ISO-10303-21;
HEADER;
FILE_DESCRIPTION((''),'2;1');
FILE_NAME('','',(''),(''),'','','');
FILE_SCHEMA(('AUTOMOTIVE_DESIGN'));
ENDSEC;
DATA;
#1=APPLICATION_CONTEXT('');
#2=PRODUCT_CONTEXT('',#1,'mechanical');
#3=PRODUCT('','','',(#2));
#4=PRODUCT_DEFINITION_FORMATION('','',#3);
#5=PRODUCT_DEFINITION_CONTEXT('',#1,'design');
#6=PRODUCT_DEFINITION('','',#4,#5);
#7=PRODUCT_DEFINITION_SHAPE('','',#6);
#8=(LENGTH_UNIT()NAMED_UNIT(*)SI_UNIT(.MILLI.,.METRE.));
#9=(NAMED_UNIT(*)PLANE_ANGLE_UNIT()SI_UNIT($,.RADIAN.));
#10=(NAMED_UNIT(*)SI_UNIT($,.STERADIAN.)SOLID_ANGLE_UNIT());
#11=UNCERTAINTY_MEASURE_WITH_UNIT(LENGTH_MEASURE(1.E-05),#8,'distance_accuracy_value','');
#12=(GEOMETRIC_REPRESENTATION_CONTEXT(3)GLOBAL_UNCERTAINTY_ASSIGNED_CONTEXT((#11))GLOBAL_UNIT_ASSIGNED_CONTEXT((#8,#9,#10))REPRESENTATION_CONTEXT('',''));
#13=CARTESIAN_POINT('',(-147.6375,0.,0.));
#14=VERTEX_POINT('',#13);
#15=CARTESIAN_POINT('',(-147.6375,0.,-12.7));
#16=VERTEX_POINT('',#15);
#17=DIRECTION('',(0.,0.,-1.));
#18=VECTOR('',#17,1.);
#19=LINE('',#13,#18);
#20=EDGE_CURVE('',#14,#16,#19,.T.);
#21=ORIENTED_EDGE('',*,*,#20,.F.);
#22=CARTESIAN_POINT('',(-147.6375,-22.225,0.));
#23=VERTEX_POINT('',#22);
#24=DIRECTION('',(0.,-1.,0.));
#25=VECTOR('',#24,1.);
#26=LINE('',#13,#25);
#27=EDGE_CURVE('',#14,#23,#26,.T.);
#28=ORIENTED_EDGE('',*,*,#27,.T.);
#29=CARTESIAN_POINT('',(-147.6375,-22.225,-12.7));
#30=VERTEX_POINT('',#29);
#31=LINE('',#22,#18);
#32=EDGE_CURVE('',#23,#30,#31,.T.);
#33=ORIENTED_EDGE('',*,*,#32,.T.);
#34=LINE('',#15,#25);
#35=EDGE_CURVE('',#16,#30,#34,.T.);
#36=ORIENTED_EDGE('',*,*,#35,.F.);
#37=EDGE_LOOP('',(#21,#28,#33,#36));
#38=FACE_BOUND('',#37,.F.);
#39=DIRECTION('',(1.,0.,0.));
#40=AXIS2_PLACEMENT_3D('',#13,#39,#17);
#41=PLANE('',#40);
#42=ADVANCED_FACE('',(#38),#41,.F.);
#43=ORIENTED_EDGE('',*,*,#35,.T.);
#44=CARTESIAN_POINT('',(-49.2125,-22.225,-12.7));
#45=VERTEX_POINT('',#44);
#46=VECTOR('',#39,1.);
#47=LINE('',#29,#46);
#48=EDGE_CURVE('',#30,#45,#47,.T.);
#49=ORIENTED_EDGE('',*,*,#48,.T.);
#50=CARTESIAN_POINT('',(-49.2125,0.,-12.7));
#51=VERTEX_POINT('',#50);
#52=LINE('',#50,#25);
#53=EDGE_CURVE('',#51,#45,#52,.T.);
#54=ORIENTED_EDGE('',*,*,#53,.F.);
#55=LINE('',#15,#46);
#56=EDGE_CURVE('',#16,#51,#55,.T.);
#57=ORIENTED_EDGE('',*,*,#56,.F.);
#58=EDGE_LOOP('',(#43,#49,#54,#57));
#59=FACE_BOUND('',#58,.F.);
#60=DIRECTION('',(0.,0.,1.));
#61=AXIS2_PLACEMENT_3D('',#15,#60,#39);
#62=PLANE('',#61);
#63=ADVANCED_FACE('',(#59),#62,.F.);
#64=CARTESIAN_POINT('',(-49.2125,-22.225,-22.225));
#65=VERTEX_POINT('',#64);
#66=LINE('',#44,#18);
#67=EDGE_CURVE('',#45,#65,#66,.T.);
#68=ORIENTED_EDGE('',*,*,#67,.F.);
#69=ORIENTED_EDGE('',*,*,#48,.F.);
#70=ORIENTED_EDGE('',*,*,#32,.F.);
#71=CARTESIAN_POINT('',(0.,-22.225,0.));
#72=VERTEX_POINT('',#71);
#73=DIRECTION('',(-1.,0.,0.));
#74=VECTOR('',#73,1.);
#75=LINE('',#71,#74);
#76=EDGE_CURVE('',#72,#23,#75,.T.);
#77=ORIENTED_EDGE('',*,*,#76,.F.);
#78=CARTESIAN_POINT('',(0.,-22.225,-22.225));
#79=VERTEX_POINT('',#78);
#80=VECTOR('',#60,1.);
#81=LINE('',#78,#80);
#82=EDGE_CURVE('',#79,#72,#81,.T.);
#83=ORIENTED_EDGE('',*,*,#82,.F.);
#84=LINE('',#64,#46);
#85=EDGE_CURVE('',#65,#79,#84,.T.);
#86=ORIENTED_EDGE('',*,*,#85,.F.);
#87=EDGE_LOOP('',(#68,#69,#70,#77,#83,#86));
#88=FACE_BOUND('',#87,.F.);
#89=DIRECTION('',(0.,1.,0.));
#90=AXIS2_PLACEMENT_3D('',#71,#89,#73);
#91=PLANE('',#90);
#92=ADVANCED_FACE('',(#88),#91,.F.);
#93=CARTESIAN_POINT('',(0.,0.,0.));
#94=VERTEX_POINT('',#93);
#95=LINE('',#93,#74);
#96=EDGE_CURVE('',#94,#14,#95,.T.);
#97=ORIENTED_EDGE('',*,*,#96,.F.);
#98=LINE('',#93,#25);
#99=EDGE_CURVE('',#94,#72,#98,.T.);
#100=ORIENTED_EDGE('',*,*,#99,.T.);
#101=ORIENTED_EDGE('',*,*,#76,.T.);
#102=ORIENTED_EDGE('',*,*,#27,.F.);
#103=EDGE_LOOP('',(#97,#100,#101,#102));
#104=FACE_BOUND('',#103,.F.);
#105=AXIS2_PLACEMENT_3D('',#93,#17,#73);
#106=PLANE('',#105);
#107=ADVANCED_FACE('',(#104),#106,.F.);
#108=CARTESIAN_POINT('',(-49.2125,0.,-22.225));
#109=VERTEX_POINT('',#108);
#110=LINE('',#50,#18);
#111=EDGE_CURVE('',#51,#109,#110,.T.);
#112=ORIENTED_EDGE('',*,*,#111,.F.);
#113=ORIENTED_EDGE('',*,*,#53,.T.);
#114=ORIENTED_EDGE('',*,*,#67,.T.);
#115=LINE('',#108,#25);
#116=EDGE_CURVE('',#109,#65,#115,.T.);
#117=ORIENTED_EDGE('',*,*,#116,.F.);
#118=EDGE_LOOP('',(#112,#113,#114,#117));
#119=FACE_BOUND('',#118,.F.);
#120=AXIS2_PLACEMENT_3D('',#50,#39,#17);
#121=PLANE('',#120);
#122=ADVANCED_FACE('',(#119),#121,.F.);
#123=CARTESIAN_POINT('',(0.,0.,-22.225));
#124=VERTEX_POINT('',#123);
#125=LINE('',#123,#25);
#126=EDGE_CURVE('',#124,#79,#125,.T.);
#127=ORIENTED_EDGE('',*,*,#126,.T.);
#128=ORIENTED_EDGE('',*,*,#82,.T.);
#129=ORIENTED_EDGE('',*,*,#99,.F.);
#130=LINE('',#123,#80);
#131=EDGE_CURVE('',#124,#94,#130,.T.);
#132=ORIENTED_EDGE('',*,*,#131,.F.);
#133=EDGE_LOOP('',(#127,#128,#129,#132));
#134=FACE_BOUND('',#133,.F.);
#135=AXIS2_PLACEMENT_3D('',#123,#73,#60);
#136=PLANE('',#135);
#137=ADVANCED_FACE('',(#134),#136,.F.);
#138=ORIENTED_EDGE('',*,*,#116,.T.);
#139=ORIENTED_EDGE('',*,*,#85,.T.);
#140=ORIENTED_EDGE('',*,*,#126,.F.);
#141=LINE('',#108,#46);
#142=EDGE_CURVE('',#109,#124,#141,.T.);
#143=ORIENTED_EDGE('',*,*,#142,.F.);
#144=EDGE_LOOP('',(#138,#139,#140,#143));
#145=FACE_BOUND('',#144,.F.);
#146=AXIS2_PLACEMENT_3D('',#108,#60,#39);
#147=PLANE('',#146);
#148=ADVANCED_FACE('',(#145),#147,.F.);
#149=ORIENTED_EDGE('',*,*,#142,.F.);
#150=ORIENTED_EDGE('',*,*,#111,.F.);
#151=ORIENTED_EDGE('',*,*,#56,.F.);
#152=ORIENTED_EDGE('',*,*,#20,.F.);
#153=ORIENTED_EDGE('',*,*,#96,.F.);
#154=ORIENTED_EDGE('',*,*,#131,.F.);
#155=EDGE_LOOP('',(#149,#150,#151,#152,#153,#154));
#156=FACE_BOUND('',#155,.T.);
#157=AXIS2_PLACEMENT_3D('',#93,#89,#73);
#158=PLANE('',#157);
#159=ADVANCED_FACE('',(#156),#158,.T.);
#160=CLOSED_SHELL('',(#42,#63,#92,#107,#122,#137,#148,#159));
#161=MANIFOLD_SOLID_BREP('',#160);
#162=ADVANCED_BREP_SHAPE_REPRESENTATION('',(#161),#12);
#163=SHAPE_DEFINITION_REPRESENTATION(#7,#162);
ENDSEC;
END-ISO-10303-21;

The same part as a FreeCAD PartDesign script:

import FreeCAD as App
import Part
import Sketcher

V = App.Vector
Q = App.Units.Quantity


def add_polygon(sketch, points):
    """Adds a closed chain of lines whose ends are joined by coincident constraints."""
    first, n = sketch.GeometryCount, len(points)
    for a, b in zip(points, points[1:] + points[:1]):
        sketch.addGeometry(Part.LineSegment(App.Vector(*a, 0), App.Vector(*b, 0)), False)
    for i in range(n):
        sketch.addConstraint(Sketcher.Constraint("Coincident", first + i, 2, first + (i + 1) % n, 1))

doc = App.newDocument("Part")
body = doc.addObject("PartDesign::Body", "Body")

sketch1 = body.newObject("Sketcher::SketchObject", "Sketch")
sketch1.AttachmentSupport = (doc.getObject("XZ_Plane"), [""])
sketch1.MapMode = "FlatFace"
add_polygon(sketch1, [(-147.6375, 0), (0, 0), (0, -22.225), (-49.2125, -22.225), (-49.2125, -12.7), (-147.6375, -12.7)])
sketch1.addConstraint([
    Sketcher.Constraint("Horizontal", 0),
    Sketcher.Constraint("Vertical", 1),
    Sketcher.Constraint("Horizontal", 2),
    Sketcher.Constraint("Vertical", 3),
    Sketcher.Constraint("Horizontal", 4),
    Sketcher.Constraint("Vertical", 5),
    Sketcher.Constraint("Coincident", 0, 2, -1, 1),
    Sketcher.Constraint("DistanceY", 5, 1, 5, 2, Q("0.5 in")),
    Sketcher.Constraint("DistanceX", 0, 1, 0, 2, Q("5.8125 in")),
    Sketcher.Constraint("DistanceX", 4, 2, 4, 1, Q("3.875 in")),
    Sketcher.Constraint("DistanceY", 1, 2, 1, 1, Q("0.875 in")),
])
pad1 = body.newObject("PartDesign::Pad", "Pad")
pad1.Profile = sketch1
pad1.Length = Q("0.875 in")

doc.recompute()
